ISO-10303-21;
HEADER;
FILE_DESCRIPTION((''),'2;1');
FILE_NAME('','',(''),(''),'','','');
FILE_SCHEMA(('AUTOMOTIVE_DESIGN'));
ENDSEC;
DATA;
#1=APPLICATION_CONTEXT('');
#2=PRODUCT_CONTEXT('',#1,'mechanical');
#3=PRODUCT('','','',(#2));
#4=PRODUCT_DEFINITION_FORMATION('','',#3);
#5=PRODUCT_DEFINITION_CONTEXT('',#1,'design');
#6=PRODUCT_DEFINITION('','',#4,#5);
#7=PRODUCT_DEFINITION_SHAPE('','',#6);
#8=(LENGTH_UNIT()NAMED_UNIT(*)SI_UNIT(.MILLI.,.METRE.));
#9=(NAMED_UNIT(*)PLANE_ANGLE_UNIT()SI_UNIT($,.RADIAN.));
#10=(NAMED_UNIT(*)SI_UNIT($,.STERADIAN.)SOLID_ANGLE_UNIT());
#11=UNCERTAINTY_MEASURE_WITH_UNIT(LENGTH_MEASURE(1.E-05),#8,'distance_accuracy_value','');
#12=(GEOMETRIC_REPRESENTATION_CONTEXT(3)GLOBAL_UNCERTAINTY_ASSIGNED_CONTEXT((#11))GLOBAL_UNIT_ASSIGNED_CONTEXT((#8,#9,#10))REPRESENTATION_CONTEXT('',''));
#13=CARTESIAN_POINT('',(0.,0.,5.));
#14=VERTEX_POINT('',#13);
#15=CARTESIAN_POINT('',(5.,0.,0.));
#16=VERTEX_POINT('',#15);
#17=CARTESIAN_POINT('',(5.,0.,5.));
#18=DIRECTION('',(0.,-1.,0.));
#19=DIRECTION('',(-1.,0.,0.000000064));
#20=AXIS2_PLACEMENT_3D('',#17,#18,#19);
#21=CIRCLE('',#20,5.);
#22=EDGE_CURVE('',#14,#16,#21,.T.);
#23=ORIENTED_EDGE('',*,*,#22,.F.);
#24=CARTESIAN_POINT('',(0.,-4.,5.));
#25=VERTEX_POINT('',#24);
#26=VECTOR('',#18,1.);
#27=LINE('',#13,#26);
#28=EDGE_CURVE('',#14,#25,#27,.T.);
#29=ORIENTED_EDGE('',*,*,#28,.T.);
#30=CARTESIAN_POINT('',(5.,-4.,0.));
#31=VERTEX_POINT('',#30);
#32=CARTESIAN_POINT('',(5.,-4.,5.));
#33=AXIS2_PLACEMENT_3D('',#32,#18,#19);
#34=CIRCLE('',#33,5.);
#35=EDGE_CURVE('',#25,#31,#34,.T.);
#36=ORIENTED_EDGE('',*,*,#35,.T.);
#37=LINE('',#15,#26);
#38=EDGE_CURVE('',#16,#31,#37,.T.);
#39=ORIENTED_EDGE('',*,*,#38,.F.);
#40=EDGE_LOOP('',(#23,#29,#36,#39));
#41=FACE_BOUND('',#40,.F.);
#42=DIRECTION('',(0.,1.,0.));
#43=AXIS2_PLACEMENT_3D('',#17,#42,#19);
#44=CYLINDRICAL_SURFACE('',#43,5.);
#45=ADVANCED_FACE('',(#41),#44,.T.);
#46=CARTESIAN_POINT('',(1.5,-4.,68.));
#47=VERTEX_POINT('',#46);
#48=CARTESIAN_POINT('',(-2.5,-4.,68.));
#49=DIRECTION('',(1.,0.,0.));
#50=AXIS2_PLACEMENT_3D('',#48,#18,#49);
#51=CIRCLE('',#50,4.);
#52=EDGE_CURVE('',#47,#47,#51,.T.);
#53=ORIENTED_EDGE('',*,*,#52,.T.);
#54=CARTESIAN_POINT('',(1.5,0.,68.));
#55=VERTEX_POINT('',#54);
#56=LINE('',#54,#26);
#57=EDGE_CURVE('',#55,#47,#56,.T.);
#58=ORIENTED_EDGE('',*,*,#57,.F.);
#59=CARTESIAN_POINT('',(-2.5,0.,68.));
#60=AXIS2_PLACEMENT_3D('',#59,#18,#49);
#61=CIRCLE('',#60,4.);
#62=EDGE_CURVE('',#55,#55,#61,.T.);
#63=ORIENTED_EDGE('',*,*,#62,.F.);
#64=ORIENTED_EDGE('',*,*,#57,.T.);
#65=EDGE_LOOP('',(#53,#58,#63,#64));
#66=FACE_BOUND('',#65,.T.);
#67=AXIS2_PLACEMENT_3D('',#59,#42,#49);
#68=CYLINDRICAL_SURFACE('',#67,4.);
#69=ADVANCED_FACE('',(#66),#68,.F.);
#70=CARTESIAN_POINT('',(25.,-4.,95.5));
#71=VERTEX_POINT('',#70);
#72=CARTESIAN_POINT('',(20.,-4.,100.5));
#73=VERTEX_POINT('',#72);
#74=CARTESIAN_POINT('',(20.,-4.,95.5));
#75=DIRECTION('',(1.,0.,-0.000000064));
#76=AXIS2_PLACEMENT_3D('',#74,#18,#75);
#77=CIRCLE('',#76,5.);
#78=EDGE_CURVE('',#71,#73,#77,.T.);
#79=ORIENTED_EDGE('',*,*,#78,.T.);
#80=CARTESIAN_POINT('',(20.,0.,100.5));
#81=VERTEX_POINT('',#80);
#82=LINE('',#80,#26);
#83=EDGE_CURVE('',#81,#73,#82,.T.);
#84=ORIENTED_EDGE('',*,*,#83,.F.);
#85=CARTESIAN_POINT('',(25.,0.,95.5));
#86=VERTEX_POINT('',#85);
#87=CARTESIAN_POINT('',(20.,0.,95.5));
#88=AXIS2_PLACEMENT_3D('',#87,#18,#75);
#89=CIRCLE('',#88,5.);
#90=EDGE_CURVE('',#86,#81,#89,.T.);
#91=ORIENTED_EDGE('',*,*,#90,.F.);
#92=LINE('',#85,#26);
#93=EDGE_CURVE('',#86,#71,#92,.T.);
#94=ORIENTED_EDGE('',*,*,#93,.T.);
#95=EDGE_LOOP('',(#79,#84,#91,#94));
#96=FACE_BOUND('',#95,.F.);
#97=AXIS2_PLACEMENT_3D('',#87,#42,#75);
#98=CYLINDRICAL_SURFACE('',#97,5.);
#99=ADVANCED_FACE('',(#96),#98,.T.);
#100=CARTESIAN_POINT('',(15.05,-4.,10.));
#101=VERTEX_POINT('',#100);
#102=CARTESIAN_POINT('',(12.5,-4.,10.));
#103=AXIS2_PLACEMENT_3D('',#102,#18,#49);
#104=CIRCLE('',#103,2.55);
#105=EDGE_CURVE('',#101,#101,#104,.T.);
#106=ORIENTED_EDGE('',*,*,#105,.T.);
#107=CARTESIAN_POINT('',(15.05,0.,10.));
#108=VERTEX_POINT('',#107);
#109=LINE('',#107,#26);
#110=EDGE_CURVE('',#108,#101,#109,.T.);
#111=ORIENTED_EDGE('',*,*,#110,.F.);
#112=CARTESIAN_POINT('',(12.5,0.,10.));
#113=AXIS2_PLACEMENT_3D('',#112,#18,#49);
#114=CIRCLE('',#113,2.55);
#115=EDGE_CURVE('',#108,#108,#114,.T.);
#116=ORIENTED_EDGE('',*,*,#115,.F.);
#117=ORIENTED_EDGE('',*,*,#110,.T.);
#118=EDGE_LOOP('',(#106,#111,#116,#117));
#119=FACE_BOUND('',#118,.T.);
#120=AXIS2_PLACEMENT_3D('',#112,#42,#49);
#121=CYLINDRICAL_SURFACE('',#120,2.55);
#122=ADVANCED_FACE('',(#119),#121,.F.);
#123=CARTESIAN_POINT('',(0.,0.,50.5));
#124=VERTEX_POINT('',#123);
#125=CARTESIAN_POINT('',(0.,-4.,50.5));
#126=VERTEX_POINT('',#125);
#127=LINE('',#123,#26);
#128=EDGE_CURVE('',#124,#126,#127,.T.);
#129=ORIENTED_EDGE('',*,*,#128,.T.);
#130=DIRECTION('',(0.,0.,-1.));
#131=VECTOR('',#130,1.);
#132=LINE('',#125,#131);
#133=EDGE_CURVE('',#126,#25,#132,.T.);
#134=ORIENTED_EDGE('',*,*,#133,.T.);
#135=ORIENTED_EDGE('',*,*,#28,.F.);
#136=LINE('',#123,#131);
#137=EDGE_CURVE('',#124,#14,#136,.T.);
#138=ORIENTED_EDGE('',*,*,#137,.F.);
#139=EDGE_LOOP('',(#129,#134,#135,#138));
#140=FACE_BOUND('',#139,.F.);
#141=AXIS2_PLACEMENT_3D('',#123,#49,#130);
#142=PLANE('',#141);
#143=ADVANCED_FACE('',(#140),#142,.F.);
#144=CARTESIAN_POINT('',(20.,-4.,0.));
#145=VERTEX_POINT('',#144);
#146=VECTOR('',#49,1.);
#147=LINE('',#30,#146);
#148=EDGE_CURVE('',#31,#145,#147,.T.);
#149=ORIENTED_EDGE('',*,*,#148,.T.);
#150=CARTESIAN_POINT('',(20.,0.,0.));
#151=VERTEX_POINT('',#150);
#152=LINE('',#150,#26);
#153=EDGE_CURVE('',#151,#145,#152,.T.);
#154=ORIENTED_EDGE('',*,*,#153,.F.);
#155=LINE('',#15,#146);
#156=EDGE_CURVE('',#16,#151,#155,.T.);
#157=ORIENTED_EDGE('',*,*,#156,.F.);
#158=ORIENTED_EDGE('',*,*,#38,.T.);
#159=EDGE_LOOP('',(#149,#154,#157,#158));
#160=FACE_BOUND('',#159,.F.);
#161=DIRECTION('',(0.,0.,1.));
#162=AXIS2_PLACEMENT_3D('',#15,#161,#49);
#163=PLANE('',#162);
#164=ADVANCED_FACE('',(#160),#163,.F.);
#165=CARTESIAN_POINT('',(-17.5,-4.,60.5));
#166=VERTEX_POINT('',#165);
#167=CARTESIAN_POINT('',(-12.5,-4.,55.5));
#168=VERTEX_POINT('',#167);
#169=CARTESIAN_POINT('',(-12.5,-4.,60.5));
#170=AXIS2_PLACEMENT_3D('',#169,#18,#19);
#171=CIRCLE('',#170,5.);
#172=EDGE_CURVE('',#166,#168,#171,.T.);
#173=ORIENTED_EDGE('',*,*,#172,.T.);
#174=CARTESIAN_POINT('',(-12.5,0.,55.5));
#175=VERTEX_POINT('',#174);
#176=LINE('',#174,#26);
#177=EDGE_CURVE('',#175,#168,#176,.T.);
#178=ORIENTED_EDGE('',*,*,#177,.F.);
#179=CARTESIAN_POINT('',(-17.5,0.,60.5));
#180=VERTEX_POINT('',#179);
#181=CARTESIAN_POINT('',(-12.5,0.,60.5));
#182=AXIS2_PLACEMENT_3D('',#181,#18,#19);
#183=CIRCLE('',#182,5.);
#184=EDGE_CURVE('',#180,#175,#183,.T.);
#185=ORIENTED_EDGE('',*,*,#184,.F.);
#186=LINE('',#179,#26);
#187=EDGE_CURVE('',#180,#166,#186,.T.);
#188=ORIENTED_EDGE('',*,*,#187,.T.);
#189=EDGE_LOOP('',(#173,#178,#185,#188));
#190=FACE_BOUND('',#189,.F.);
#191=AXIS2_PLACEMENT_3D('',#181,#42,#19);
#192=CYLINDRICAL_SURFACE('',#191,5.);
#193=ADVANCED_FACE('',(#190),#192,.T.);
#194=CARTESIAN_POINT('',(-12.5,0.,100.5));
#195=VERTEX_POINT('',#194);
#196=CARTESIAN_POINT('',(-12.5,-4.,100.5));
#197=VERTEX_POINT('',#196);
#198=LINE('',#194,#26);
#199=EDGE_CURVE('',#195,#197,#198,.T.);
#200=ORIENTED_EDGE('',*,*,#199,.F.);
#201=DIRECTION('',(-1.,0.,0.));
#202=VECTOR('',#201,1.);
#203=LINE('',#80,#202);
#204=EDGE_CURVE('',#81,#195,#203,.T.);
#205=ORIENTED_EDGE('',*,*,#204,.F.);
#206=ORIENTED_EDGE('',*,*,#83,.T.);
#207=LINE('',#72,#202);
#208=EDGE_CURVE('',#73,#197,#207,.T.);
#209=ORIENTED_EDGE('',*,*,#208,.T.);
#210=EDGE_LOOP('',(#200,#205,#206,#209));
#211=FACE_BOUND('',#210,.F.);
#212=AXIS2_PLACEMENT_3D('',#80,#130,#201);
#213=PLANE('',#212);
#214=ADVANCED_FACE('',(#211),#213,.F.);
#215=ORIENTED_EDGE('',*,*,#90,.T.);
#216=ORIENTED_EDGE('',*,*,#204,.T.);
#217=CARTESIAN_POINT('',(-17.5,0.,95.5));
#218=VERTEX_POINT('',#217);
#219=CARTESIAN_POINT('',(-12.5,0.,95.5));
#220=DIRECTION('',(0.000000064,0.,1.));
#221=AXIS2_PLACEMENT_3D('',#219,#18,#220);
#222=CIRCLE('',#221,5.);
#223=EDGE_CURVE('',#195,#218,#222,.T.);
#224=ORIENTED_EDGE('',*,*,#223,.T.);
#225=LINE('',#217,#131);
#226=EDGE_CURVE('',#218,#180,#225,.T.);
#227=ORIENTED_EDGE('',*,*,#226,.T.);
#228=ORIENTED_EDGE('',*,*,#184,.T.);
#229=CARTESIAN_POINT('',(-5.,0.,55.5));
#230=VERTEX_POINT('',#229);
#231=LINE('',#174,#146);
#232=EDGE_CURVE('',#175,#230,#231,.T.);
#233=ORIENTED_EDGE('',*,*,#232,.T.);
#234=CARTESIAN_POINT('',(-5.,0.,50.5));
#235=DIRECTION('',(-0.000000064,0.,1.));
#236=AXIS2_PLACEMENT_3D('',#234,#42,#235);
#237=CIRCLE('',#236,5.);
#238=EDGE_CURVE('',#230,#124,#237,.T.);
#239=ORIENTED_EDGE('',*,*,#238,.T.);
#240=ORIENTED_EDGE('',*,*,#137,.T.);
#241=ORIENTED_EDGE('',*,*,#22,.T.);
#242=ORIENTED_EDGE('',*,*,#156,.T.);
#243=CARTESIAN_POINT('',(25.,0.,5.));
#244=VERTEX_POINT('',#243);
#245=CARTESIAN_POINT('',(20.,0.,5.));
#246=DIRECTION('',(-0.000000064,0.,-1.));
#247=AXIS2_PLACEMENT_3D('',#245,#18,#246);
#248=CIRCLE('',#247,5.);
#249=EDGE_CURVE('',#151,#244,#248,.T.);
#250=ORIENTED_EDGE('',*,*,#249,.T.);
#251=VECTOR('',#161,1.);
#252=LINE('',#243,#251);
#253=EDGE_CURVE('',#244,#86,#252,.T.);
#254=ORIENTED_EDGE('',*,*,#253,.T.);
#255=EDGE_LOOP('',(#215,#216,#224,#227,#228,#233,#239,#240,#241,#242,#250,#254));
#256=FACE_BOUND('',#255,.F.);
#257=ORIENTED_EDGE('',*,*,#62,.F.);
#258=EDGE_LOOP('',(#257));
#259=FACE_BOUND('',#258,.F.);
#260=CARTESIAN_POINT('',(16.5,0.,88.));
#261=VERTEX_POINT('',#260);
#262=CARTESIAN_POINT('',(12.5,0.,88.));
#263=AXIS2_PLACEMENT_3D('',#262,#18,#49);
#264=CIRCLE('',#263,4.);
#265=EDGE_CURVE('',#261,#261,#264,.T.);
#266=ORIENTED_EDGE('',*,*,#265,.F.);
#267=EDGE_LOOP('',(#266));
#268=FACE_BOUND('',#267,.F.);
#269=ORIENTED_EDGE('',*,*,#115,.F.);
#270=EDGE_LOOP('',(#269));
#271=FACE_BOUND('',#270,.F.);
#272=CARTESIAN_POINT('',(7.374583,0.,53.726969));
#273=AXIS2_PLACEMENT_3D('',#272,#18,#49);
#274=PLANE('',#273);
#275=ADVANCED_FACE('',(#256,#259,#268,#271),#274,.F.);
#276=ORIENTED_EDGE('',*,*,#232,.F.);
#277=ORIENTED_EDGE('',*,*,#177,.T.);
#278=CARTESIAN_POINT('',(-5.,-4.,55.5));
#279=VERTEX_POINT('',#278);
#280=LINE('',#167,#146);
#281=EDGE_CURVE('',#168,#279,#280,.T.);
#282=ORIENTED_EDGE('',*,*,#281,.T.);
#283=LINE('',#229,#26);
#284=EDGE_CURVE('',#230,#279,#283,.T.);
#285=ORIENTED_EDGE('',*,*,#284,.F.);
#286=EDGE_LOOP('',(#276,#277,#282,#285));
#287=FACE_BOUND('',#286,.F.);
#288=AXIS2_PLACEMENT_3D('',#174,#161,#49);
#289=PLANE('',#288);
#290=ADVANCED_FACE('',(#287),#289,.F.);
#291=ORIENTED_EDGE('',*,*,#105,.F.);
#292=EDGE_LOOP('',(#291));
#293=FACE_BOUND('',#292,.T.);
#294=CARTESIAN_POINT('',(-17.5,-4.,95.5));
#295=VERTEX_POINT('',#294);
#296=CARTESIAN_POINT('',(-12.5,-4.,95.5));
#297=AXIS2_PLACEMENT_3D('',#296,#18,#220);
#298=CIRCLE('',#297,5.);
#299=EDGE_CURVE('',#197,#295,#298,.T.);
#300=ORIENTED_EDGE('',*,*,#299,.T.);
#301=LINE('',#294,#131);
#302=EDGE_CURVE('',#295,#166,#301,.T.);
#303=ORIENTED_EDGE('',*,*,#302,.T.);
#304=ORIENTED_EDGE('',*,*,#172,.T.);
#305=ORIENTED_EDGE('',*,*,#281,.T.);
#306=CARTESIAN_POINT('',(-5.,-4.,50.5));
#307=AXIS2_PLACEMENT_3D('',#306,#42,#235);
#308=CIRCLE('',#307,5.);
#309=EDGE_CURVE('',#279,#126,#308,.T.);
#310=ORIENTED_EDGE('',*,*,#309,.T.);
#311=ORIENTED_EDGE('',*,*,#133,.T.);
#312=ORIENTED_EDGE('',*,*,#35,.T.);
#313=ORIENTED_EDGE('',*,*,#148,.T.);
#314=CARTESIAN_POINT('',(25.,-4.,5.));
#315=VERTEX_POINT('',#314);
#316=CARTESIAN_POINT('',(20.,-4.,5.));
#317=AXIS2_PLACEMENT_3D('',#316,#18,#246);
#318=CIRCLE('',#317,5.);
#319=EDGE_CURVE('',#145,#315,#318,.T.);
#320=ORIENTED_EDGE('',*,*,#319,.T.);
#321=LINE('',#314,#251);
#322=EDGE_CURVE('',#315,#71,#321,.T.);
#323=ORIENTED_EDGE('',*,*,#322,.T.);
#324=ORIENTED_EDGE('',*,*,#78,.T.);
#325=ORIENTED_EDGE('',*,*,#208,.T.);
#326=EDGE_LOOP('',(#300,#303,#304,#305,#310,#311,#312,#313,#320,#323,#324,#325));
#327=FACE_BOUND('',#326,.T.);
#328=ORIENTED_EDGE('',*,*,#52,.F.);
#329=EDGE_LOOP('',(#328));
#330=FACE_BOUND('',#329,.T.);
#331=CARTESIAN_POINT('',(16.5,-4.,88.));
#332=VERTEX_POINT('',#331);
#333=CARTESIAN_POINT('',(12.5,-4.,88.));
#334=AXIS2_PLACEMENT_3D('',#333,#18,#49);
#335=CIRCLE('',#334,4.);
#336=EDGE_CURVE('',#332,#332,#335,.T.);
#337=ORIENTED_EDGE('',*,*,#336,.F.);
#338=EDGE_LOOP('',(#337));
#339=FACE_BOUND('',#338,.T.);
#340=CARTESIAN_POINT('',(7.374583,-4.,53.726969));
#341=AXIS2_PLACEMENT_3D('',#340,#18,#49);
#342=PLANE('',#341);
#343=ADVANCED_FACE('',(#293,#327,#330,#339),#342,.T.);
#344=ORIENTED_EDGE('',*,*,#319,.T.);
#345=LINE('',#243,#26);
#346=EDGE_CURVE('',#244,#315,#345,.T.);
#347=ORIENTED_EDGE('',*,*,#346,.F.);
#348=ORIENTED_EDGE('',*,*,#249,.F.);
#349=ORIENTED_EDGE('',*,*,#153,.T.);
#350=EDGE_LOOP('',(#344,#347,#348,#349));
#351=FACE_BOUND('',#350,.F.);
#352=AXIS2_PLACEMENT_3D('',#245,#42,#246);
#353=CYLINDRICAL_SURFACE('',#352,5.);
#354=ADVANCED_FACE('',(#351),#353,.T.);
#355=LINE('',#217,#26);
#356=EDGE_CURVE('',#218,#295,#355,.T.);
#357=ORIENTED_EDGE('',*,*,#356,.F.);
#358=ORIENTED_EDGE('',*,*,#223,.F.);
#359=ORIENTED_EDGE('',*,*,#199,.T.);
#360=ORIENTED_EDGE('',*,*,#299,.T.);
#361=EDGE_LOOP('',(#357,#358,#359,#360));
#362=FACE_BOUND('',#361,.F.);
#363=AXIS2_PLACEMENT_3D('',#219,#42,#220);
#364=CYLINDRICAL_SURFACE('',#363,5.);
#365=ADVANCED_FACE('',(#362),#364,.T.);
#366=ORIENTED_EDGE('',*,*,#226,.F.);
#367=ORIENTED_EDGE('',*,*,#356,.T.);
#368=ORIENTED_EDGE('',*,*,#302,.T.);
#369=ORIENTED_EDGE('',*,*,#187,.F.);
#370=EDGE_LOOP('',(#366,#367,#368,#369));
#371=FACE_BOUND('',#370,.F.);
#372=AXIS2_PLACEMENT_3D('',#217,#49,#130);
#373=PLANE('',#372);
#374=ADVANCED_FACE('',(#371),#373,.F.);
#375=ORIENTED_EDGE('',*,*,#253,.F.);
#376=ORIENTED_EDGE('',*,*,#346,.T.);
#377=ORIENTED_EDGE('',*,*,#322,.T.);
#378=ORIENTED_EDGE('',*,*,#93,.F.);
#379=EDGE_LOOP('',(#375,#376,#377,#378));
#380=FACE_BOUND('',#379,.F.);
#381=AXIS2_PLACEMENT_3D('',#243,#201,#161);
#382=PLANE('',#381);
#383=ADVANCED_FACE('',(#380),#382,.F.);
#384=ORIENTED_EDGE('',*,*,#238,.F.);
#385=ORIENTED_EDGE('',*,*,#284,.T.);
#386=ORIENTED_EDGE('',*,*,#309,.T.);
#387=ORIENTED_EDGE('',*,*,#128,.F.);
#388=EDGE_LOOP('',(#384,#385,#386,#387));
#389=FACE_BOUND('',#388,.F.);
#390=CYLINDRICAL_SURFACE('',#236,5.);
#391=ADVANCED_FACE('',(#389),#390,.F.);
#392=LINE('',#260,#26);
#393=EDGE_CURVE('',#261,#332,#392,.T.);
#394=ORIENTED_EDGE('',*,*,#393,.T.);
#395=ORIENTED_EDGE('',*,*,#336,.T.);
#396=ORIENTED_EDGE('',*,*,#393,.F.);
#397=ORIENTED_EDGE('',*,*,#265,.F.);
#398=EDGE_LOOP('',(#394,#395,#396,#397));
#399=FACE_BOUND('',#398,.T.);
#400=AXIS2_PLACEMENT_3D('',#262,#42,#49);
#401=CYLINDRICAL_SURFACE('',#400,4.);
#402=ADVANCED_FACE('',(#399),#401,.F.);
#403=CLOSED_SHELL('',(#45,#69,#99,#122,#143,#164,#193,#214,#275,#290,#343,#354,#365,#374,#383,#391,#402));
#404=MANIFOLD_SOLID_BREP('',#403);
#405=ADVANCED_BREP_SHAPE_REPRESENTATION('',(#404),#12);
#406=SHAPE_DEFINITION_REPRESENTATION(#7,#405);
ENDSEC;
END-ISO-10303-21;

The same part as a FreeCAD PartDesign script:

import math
import FreeCAD as App
import Part
import Sketcher

V = App.Vector
Q = App.Units.Quantity

doc = App.newDocument("Part")
params = doc.addObject("Spreadsheet::Sheet", "Params")
for row, (alias, value) in enumerate([
    ("sketch1_diameter", "8 mm"),
    ("sketch1_radius", "5 mm"),
    ("sketch1_diameter2", "5.1 mm"),
    ("sketch1_width", "15 mm"),
    ("sketch1_height", "35 mm"),
    ("pad1_length", "4 mm"),
], start=1):
    params.set(f"A{row}", alias)
    params.set(f"B{row}", "=" + value)
    params.setAlias(f"B{row}", alias)

body = doc.addObject("PartDesign::Body", "Body")

# Sketch on XZ plane
sketch1 = body.newObject("Sketcher::SketchObject", "Sketch")
sketch1.AttachmentSupport = (doc.getObject("XZ_Plane"), [""])
sketch1.MapMode = "FlatFace"
sketch1.addGeometry(Part.LineSegment(V(0, 50.5, 0), V(0, 5, 0)), False)
sketch1.addGeometry(Part.ArcOfCircle(Part.Circle(V(5, 5, 0), V(0, 0, 1), 5), math.radians(180), math.radians(270)), False)
sketch1.addGeometry(Part.LineSegment(V(5, 0, 0), V(20, 0, 0)), False)
sketch1.addGeometry(Part.ArcOfCircle(Part.Circle(V(20, 5, 0), V(0, 0, 1), 5), math.radians(-90), math.radians(0)), False)
sketch1.addGeometry(Part.LineSegment(V(25, 5, 0), V(25, 95.5, 0)), False)
sketch1.addGeometry(Part.ArcOfCircle(Part.Circle(V(20, 95.5, 0), V(0, 0, 1), 5), math.radians(0), math.radians(90)), False)
sketch1.addGeometry(Part.LineSegment(V(20, 100.5, 0), V(-12.5, 100.5, 0)), False)
sketch1.addGeometry(Part.ArcOfCircle(Part.Circle(V(-12.5, 95.5, 0), V(0, 0, 1), 5), math.radians(90), math.radians(180)), False)
sketch1.addGeometry(Part.LineSegment(V(-17.5, 95.5, 0), V(-17.5, 60.5, 0)), False)
sketch1.addGeometry(Part.ArcOfCircle(Part.Circle(V(-12.5, 60.5, 0), V(0, 0, 1), 5), math.radians(180), math.radians(270)), False)
sketch1.addGeometry(Part.LineSegment(V(-12.5, 55.5, 0), V(-5, 55.5, 0)), False)
sketch1.addGeometry(Part.ArcOfCircle(Part.Circle(V(-5, 50.5, 0), V(0, 0, 1), 5), math.radians(0), math.radians(90)), False)
sketch1.addGeometry(Part.Circle(V(12.5, 10, 0), V(0, 0, 1), 2.5), False)
sketch1.addGeometry(Part.Circle(V(-2.5, 68, 0), V(0, 0, 1), 4), False)
sketch1.addGeometry(Part.Circle(V(12.5, 88, 0), V(0, 0, 1), 4), False)
sketch1.addConstraint(Sketcher.Constraint("Tangent", 0, 2, 1, 1))
sketch1.addConstraint(Sketcher.Constraint("Tangent", 1, 2, 2, 1))
sketch1.addConstraint(Sketcher.Constraint("Tangent", 2, 2, 3, 1))
sketch1.addConstraint(Sketcher.Constraint("Tangent", 3, 2, 4, 1))
sketch1.addConstraint(Sketcher.Constraint("Tangent", 4, 2, 5, 1))
sketch1.addConstraint(Sketcher.Constraint("Tangent", 5, 2, 6, 1))
sketch1.addConstraint(Sketcher.Constraint("Tangent", 6, 2, 7, 1))
sketch1.addConstraint(Sketcher.Constraint("Tangent", 7, 2, 8, 1))
sketch1.addConstraint(Sketcher.Constraint("Tangent", 8, 2, 9, 1))
sketch1.addConstraint(Sketcher.Constraint("Tangent", 9, 2, 10, 1))
sketch1.addConstraint(Sketcher.Constraint("Tangent", 10, 2, 11, 2))
sketch1.addConstraint(Sketcher.Constraint("Tangent", 11, 1, 0, 1))
sketch1.addConstraint(Sketcher.Constraint("Vertical", 0))
sketch1.addConstraint(Sketcher.Constraint("Horizontal", 2))
sketch1.addConstraint(Sketcher.Constraint("Vertical", 4))
sketch1.addConstraint(Sketcher.Constraint("Horizontal", 6))
sketch1.addConstraint(Sketcher.Constraint("Vertical", 8))
sketch1.addConstraint(Sketcher.Constraint("Horizontal", 10))
sketch1.addConstraint(Sketcher.Constraint("Equal", 1, 3))
sketch1.addConstraint(Sketcher.Constraint("Equal", 3, 5))
sketch1.addConstraint(Sketcher.Constraint("Equal", 5, 7))
sketch1.addConstraint(Sketcher.Constraint("Equal", 7, 9))
sketch1.addConstraint(Sketcher.Constraint("Equal", 9, 11))
sketch1.addConstraint(Sketcher.Constraint("Equal", 13, 14))
sketch1.addConstraint(Sketcher.Constraint("PointOnObject", 0, 2, -2))
sketch1.addConstraint(Sketcher.Constraint("PointOnObject", 1, 2, -1))
sketch1.addConstraint(Sketcher.Constraint("Vertical", 12, 3, 14, 3))
sketch1.addConstraint(Sketcher.Constraint("Diameter", 13, Q("8 mm")))
sketch1.addConstraint(Sketcher.Constraint("Radius", 1, Q("5 mm")))
sketch1.addConstraint(Sketcher.Constraint("Diameter", 12, Q("5.1 mm")))
sketch1.addConstraint(Sketcher.Constraint("DistanceX", 2, 1, 2, 2, Q("15 mm")))
sketch1.addConstraint(Sketcher.Constraint("DistanceY", 8, 2, 8, 1, Q("35 mm")))
sketch1.addConstraint(Sketcher.Constraint("DistanceX", 6, 2, 6, 1, Q("32.5 mm")))
sketch1.addConstraint(Sketcher.Constraint("DistanceY", 0, 2, 0, 1, Q("45.5 mm")))
sketch1.addConstraint(Sketcher.Constraint("DistanceY", -1, 1, 12, 3, Q("10 mm")))
sketch1.addConstraint(Sketcher.Constraint("DistanceY", -1, 1, 13, 3, Q("68 mm")))
sketch1.addConstraint(Sketcher.Constraint("DistanceY", -1, 1, 14, 3, Q("88 mm")))
sketch1.addConstraint(Sketcher.Constraint("DistanceX", 9, 3, 12, 3, Q("25 mm")))
sketch1.addConstraint(Sketcher.Constraint("DistanceX", 9, 3, 13, 3, Q("10 mm")))
sketch1.setExpression("Constraints[27]", "Params.sketch1_diameter")
sketch1.setExpression("Constraints[28]", "Params.sketch1_radius")
sketch1.setExpression("Constraints[29]", "Params.sketch1_diameter2")
sketch1.setExpression("Constraints[30]", "Params.sketch1_width")
sketch1.setExpression("Constraints[31]", "Params.sketch1_height")
pad1 = body.newObject("PartDesign::Pad", "Pad")
pad1.Profile = sketch1
pad1.setExpression("Length", "Params.pad1_length")

doc.recompute()
